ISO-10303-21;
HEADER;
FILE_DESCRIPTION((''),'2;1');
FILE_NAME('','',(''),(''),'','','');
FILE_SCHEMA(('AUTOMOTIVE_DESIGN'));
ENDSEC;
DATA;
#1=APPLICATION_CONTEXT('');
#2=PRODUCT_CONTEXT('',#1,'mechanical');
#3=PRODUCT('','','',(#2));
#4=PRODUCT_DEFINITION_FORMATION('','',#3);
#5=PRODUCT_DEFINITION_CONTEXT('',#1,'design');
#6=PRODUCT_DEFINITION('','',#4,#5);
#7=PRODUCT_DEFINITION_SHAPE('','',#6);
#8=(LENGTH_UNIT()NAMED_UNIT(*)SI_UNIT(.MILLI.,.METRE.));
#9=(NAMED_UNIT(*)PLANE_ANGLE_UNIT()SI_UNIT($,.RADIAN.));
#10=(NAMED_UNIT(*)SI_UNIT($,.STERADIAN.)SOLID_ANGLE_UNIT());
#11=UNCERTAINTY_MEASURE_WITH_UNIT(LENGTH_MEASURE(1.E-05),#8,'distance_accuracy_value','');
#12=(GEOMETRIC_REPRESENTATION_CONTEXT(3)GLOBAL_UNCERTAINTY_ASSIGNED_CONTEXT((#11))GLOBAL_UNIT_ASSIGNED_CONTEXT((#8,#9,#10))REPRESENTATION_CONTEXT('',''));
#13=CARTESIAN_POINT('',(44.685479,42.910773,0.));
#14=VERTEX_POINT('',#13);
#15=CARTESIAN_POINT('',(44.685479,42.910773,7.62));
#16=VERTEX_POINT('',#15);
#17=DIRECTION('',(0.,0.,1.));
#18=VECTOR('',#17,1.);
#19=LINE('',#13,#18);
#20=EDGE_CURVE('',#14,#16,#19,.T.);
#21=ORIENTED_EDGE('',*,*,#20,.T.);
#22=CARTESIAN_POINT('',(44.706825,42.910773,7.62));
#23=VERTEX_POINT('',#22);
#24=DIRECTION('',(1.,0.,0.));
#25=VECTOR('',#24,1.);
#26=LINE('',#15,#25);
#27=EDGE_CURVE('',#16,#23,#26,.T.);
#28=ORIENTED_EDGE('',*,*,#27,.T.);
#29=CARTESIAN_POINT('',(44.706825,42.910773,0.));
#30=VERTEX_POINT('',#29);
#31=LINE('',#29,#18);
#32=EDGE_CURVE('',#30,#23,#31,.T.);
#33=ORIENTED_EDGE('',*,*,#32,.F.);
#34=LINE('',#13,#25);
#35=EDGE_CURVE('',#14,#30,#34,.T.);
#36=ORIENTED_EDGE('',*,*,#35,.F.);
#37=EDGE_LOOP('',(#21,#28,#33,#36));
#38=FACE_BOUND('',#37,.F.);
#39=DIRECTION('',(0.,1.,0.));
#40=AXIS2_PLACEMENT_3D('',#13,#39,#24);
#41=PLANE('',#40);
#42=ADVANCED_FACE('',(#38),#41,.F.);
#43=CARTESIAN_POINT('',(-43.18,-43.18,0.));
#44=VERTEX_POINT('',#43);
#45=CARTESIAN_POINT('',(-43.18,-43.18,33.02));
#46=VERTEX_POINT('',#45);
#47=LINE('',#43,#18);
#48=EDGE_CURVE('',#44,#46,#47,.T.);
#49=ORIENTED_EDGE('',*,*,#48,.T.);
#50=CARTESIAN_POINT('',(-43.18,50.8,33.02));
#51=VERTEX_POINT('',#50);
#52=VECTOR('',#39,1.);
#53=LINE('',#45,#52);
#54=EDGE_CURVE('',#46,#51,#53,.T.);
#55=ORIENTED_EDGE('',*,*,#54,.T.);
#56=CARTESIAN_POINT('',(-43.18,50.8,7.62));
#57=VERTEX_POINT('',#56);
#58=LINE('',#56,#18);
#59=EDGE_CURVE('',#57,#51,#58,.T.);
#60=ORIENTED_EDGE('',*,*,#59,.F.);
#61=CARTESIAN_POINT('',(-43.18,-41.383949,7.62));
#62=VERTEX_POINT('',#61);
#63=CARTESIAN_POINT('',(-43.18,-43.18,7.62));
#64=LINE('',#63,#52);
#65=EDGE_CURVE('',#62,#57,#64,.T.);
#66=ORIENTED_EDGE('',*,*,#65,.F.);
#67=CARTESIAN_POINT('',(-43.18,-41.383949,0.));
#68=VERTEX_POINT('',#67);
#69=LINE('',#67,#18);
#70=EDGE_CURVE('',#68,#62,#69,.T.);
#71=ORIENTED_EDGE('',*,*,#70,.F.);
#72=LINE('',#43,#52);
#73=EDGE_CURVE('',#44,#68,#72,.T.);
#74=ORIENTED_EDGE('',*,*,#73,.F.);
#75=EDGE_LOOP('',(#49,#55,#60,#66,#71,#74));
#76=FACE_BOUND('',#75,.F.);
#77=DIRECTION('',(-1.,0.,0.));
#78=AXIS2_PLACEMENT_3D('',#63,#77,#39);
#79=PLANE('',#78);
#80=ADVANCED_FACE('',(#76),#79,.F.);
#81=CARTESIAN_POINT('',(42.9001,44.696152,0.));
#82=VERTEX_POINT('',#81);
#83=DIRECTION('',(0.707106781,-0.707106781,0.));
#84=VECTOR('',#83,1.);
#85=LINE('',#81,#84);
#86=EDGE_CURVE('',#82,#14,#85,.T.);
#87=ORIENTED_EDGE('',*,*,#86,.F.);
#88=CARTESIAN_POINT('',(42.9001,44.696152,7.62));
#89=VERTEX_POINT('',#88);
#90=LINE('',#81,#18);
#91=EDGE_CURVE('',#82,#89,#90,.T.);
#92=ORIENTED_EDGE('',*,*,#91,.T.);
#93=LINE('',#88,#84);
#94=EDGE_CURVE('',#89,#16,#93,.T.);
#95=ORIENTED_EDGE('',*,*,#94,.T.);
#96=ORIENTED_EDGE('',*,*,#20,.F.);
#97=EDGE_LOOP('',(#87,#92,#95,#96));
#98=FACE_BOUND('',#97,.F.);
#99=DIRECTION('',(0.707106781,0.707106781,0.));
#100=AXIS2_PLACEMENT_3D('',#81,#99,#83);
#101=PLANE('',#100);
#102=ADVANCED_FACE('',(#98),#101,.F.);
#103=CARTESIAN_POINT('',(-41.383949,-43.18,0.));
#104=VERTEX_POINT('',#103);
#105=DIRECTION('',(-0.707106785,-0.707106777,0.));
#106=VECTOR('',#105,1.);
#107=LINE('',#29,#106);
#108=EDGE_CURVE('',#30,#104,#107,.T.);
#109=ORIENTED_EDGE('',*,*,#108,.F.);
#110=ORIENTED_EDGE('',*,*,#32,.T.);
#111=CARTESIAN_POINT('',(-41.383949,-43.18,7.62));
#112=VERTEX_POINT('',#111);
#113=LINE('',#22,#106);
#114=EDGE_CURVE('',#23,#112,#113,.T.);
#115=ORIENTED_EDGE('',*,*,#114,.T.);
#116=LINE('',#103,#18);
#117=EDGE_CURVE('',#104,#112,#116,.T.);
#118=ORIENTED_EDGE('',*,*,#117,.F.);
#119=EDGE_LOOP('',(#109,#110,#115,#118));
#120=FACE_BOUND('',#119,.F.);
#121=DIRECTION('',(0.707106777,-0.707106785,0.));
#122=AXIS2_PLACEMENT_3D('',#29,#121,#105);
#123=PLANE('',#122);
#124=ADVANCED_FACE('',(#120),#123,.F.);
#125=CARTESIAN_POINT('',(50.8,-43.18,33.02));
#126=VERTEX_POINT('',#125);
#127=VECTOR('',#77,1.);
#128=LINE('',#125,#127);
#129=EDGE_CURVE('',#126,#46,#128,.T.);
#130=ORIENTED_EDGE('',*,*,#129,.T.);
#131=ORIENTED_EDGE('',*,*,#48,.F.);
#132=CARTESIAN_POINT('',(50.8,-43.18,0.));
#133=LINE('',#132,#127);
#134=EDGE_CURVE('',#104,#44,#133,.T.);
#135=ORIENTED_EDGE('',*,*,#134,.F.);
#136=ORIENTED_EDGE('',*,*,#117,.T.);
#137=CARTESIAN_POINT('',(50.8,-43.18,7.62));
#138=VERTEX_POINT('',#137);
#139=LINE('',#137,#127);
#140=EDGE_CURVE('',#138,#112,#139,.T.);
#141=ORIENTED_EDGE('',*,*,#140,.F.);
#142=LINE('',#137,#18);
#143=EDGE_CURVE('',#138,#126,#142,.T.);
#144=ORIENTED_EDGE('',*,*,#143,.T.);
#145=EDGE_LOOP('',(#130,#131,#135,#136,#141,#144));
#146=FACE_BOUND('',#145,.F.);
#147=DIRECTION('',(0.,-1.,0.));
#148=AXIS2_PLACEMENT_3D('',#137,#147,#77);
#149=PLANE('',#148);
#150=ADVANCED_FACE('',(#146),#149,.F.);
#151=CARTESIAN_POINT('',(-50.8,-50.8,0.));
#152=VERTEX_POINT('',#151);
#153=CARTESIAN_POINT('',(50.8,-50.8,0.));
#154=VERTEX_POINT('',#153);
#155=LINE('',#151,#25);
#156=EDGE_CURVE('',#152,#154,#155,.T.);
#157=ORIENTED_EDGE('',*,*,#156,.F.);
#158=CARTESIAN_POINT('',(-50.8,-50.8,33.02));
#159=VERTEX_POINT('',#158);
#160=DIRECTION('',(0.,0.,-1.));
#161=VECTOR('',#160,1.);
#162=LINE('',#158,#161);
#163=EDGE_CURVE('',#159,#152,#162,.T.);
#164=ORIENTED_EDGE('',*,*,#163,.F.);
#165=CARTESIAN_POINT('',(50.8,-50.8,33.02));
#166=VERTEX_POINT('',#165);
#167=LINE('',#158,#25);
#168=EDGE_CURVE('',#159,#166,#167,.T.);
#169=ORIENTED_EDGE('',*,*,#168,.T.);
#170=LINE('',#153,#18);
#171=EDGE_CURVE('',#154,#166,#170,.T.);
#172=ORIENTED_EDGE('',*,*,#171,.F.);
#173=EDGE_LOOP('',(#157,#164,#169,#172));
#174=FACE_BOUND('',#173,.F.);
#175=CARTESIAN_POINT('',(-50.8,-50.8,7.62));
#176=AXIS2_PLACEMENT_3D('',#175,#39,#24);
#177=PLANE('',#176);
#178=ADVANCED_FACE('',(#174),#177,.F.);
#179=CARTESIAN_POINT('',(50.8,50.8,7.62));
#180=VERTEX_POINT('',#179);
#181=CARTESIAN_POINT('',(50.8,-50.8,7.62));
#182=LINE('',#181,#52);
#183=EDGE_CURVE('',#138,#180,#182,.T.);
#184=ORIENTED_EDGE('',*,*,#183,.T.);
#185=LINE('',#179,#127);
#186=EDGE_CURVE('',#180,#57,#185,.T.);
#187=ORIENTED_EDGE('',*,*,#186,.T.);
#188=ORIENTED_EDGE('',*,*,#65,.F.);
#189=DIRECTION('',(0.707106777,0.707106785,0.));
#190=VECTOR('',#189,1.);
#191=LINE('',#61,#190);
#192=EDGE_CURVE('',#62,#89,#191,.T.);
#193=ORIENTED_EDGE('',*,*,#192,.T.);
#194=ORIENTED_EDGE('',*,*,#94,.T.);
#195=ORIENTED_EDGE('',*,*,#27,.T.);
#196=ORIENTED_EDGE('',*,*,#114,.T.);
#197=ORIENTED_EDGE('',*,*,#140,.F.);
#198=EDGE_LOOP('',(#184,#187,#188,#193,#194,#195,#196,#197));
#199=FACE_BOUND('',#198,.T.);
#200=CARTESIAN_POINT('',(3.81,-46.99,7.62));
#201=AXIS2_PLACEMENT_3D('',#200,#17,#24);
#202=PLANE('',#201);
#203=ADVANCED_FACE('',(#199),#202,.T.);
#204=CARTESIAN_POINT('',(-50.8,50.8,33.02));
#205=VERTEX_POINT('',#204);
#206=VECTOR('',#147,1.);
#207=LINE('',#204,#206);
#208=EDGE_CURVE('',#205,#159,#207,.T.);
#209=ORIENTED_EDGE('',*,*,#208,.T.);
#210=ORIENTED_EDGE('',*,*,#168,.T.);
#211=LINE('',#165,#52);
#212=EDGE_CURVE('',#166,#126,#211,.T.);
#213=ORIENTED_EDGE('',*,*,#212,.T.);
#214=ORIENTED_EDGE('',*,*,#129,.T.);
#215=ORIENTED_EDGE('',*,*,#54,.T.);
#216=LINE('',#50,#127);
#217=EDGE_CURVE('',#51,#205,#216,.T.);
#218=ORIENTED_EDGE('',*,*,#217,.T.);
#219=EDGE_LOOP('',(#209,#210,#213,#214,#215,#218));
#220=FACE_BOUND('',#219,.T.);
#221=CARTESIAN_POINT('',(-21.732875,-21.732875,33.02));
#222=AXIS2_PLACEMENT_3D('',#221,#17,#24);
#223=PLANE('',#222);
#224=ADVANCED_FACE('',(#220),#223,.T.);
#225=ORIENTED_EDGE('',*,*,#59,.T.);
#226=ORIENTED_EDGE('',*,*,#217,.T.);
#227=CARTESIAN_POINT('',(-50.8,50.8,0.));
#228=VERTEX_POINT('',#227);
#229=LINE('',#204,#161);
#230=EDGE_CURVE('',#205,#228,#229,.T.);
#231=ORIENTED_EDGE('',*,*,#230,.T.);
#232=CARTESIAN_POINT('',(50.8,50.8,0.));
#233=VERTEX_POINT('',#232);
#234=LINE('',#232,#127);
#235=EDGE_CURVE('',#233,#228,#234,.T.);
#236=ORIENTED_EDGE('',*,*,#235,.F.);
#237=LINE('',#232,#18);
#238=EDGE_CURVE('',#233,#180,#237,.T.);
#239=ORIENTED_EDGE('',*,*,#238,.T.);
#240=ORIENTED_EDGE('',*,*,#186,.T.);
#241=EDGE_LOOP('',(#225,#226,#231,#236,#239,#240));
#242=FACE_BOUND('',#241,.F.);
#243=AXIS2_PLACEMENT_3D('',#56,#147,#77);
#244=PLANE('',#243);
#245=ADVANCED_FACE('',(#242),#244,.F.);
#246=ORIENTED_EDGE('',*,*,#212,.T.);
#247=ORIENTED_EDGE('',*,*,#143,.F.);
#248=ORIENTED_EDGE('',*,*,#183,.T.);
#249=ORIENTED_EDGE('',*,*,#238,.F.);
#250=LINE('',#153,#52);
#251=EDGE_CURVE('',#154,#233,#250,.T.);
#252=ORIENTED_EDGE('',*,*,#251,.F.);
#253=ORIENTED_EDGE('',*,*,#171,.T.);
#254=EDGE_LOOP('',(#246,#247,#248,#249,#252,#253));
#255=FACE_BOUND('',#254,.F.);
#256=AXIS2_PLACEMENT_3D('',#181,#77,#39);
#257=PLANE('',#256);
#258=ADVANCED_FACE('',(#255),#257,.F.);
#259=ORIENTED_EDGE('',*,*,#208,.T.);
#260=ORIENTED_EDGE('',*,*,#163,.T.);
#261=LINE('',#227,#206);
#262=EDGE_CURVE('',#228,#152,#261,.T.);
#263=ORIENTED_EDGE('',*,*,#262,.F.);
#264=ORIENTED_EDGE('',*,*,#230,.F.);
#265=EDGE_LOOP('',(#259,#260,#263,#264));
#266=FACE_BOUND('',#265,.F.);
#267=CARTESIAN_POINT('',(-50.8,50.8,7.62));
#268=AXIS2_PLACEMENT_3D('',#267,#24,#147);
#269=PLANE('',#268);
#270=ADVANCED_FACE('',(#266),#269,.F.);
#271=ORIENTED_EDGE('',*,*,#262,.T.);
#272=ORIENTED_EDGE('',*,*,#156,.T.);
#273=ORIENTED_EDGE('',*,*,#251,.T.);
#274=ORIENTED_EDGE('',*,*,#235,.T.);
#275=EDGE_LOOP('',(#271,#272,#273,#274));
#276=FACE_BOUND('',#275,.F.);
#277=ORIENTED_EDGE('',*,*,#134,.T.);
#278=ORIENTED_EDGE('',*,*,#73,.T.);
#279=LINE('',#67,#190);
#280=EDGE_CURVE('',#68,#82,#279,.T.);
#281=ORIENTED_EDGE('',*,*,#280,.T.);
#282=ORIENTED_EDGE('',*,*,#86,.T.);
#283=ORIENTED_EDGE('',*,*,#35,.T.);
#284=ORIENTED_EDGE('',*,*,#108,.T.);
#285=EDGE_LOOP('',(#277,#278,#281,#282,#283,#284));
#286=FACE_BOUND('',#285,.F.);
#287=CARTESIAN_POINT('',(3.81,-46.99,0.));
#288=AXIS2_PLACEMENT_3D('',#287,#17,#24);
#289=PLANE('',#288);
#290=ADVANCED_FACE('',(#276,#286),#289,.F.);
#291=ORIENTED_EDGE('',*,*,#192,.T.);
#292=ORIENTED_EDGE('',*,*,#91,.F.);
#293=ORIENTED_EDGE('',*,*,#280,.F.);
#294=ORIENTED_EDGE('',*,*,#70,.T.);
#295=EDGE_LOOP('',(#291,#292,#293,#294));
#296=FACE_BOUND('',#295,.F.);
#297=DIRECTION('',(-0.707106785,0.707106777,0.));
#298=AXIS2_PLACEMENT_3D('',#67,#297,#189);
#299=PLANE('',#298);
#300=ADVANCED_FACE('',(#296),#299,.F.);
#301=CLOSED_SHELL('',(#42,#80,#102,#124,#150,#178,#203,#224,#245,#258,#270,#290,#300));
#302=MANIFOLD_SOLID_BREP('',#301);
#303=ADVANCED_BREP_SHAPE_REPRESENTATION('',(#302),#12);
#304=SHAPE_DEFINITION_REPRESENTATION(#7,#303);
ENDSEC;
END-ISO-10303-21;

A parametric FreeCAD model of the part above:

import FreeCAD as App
import Part
import Sketcher
from FreeCAD import Vector
Q = App.Units.Quantity


def add_polygon(sketch, points):
    """Adds a closed chain of lines whose ends are joined by coincident constraints."""
    first, n = sketch.GeometryCount, len(points)
    for a, b in zip(points, points[1:] + points[:1]):
        sketch.addGeometry(Part.LineSegment(App.Vector(*a, 0), App.Vector(*b, 0)), False)
    for i in range(n):
        sketch.addConstraint(Sketcher.Constraint("Coincident", first + i, 2, first + (i + 1) % n, 1))

doc = App.newDocument("Part")
body = doc.addObject("PartDesign::Body", "Body")

# Sketch on XY plane
sketch1 = body.newObject("Sketcher::SketchObject", "Sketch")
sketch1.AttachmentSupport = (doc.getObject("XY_Plane"), [""])
sketch1.MapMode = "FlatFace"
add_polygon(sketch1, [(50.8, -50.8), (50.8, 50.8), (-50.8, 50.8), (-50.8, -50.8)])  # lines 0-3
add_polygon(sketch1, [(44.707, 42.911), (-41.384, -43.18), (-43.18, -43.18), (-43.18, -41.384), (42.9, 44.696), (44.685, 42.911)])  # lines 4-9
sketch1.addConstraint([
    Sketcher.Constraint("Vertical", 0),
    Sketcher.Constraint("Horizontal", 1),
    Sketcher.Constraint("Vertical", 2),
    Sketcher.Constraint("Horizontal", 3),
    Sketcher.Constraint("Horizontal", 5),
    Sketcher.Constraint("Vertical", 6),
    Sketcher.Constraint("Horizontal", 9),
    Sketcher.Constraint("Symmetric", 0, 2, 2, 2, -1, 1),
    Sketcher.Constraint("Parallel", 4, 7),
    Sketcher.Constraint("Perpendicular", 7, 8),
    Sketcher.Constraint("Equal", 3, 0),
    Sketcher.Constraint("Equal", 5, 6),
    Sketcher.Constraint("DistanceX", 1, 2, 1, 1, Q("4 in")),
    Sketcher.Constraint("Angle", 4, Q("-135 deg")),
    Sketcher.Constraint("DistanceY", 4, 2, -1, 1, Q("1.7 in")),
    Sketcher.Constraint("DistanceX", 5, 2, -1, 1, Q("1.7 in")),
    Sketcher.Constraint("DistanceX", 5, 2, 5, 1, 1.796051),
    Sketcher.Constraint("DistanceX", -1, 1, 7, 2, 42.9001),
    Sketcher.Constraint("Distance", 4, 121.750739),
])
pad1 = body.newObject("PartDesign::Pad", "Pad")
pad1.Profile = sketch1
pad1.Length = Q("0.3 in")

# Sketch on XY plane
sketch2 = body.newObject("Sketcher::SketchObject", "Sketch001")
sketch2.AttachmentSupport = (doc.getObject("XY_Plane"), [""])
sketch2.MapMode = "FlatFace"
sketch2.AttachmentOffset = App.Placement(Vector(0, 0, 0.3 * 25.4), App.Rotation())
add_polygon(sketch2, [(-51, -51), (51, -51), (51, -43), (-43, -43), (-43, 51), (-51, 51)])  # lines 0-5
sketch2.addConstraint([
    Sketcher.Constraint("Horizontal", 0),
    Sketcher.Constraint("Vertical", 1),
    Sketcher.Constraint("Horizontal", 2),
    Sketcher.Constraint("Vertical", 3),
    Sketcher.Constraint("Horizontal", 4),
    Sketcher.Constraint("Vertical", 5),
    Sketcher.Constraint("Symmetric", 0, 2, 4, 2, -1, 1),
    Sketcher.Constraint("Equal", 4, 1),
    Sketcher.Constraint("Equal", 2, 3),
    Sketcher.Constraint("DistanceX", 0, 1, 0, 2, Q("4 in")),
    Sketcher.Constraint("DistanceX", 2, 2, 2, 1, Q("3.7 in")),
])
pad2 = body.newObject("PartDesign::Pad", "Pad001")
pad2.Profile = sketch2
pad2.Length = Q("1 in")

doc.recompute()
